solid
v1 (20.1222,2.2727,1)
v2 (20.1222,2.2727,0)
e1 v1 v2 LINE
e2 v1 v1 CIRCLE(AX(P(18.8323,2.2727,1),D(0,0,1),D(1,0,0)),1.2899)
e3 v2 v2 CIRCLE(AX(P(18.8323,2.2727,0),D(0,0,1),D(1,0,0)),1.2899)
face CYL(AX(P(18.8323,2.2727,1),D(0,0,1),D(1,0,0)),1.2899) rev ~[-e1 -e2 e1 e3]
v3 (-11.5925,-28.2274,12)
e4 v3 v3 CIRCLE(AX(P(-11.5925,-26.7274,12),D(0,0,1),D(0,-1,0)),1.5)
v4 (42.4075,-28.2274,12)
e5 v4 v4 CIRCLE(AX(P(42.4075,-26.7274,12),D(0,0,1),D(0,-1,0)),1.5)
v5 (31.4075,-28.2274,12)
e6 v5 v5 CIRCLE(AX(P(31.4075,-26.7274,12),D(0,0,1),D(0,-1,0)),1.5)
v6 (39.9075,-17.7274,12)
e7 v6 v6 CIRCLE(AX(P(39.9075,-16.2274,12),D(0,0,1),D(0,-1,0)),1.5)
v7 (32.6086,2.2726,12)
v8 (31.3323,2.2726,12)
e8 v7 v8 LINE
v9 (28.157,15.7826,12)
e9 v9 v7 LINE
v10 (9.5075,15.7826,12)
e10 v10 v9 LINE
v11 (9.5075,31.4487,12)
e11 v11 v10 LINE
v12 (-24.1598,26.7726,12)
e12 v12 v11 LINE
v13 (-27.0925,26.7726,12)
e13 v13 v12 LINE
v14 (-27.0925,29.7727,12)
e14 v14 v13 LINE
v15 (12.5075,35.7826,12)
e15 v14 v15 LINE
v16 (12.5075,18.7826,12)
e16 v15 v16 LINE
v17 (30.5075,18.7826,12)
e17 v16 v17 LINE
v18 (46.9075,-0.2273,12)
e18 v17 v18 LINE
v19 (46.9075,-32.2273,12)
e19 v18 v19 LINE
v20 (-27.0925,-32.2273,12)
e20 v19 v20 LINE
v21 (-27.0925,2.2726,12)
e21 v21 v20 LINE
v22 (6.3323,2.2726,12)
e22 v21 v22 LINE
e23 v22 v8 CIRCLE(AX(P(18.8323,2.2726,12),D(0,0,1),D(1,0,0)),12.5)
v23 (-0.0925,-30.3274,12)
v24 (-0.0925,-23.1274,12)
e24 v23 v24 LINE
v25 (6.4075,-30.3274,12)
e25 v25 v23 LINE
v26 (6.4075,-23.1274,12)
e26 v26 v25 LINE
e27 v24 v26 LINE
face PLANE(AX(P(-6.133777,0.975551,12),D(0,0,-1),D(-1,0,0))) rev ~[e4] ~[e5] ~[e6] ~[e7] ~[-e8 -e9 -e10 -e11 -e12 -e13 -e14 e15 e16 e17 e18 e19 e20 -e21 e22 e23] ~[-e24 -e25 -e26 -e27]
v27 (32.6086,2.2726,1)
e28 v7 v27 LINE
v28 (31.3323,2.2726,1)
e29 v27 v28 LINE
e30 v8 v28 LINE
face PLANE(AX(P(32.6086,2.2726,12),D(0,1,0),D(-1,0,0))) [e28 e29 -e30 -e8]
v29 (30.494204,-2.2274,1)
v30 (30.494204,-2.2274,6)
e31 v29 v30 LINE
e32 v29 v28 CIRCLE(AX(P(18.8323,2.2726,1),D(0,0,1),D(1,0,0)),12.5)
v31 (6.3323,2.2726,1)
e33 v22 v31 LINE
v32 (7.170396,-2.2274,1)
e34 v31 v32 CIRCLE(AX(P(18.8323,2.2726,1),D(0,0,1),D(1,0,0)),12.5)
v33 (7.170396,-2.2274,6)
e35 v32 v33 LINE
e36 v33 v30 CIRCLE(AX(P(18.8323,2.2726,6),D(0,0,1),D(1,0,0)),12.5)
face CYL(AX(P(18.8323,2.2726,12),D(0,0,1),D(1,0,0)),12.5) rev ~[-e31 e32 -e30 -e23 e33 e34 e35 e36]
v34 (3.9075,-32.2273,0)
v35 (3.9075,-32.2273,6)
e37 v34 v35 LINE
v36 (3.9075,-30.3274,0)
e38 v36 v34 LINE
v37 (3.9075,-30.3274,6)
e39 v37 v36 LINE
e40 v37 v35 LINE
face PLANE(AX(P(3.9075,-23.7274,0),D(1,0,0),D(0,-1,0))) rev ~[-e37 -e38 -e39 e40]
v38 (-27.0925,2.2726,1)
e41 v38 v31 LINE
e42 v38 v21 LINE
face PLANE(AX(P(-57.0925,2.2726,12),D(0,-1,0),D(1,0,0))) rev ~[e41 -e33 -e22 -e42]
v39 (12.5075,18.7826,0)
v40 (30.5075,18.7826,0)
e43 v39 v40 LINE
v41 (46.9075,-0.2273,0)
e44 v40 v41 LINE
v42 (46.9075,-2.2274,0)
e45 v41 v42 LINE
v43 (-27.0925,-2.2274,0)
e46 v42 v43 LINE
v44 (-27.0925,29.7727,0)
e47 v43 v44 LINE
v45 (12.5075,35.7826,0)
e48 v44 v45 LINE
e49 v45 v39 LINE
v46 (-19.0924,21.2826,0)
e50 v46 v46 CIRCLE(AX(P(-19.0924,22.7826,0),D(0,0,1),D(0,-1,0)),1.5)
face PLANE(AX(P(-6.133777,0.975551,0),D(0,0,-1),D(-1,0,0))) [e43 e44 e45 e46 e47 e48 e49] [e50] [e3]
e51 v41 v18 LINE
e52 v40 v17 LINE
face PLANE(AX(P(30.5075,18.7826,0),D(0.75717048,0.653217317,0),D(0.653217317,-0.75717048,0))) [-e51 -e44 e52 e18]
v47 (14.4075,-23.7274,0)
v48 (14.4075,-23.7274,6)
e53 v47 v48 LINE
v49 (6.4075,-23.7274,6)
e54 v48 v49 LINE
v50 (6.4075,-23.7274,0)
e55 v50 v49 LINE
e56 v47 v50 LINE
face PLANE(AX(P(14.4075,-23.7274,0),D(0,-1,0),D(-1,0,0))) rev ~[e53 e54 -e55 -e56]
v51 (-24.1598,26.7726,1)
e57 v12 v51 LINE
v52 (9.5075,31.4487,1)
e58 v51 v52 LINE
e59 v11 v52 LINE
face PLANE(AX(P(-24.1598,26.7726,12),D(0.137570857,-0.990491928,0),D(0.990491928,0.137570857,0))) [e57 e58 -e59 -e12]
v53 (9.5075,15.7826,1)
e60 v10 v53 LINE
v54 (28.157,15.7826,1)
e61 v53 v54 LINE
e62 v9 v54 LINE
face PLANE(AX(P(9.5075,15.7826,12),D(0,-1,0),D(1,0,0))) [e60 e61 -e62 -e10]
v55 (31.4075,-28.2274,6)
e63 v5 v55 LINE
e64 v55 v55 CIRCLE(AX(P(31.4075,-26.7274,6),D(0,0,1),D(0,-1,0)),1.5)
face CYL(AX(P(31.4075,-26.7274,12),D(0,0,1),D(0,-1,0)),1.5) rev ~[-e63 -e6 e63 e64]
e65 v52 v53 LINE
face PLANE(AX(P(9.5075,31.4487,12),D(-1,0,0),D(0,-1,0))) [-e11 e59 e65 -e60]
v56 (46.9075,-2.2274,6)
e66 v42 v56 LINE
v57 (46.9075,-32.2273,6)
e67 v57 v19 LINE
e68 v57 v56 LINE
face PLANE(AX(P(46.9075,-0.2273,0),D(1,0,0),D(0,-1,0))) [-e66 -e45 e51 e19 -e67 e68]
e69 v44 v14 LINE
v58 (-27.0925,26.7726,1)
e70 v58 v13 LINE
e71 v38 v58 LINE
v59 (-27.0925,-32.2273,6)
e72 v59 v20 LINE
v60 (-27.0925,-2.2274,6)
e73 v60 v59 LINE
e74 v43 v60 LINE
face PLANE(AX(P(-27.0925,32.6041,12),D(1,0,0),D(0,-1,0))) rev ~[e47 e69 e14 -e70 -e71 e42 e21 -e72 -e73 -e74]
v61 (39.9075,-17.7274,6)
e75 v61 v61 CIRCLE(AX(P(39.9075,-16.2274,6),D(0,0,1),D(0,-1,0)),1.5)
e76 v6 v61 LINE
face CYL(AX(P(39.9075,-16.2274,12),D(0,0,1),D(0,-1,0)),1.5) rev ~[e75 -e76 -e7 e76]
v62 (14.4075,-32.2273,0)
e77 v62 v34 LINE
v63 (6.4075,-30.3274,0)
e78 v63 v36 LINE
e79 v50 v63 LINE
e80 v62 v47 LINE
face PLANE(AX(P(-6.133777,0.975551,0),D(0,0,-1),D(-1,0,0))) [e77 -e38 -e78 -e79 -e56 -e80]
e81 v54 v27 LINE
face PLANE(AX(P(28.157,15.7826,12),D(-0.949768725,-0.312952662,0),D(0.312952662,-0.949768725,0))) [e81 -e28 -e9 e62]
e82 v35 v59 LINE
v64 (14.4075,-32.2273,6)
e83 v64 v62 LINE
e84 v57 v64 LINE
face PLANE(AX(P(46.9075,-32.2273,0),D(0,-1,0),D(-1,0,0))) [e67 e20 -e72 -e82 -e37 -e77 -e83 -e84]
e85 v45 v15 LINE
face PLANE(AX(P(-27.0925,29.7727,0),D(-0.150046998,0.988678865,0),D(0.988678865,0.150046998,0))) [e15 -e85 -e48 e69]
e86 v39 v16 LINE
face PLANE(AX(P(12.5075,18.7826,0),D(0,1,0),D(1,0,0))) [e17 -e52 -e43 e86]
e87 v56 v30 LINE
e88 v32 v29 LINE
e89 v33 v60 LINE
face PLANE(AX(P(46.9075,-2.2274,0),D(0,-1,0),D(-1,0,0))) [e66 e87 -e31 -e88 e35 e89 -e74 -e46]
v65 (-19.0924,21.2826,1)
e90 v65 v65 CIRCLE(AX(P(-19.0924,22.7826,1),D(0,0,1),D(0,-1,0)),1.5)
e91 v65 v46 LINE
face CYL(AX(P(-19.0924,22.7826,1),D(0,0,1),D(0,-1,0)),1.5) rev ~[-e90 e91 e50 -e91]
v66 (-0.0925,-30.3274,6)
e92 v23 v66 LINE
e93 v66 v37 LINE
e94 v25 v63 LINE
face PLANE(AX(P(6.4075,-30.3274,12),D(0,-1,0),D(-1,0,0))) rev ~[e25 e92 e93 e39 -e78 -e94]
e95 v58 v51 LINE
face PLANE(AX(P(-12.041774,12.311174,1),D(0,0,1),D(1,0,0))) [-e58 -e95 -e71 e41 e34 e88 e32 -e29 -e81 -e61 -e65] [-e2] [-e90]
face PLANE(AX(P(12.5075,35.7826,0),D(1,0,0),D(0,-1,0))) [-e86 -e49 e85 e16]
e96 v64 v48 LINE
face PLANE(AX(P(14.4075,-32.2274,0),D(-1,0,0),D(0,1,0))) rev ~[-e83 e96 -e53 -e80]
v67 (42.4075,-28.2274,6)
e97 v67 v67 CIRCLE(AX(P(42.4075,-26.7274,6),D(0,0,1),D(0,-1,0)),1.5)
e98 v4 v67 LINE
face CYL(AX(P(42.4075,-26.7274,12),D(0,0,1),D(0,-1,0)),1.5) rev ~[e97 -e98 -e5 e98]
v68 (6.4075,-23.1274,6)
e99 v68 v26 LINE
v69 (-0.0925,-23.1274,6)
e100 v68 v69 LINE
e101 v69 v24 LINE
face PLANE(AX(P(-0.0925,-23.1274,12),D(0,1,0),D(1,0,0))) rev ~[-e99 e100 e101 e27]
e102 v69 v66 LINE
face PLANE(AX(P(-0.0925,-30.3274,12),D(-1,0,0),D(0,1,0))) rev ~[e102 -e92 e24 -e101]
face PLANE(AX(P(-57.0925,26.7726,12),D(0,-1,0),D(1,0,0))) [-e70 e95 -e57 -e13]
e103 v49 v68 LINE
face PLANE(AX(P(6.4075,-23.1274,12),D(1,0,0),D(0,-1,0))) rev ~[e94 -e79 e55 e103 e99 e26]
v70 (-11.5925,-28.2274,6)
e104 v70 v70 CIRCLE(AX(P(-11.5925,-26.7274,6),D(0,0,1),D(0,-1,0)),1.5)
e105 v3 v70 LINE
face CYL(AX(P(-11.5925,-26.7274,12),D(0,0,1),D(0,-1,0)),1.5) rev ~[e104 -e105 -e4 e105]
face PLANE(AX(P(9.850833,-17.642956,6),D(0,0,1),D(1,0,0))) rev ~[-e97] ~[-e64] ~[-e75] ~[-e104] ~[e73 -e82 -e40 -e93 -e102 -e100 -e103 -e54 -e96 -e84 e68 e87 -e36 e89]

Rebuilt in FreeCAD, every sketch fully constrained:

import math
import FreeCAD as App
import Part
import Sketcher
from FreeCAD import Vector
Q = App.Units.Quantity


def add_polygon(sketch, points):
    """Adds a closed chain of lines whose ends are joined by coincident constraints."""
    first, n = sketch.GeometryCount, len(points)
    for a, b in zip(points, points[1:] + points[:1]):
        sketch.addGeometry(Part.LineSegment(App.Vector(*a, 0), App.Vector(*b, 0)), False)
    for i in range(n):
        sketch.addConstraint(Sketcher.Constraint("Coincident", first + i, 2, first + (i + 1) % n, 1))

doc = App.newDocument("Part")
body = doc.addObject("PartDesign::Body", "Body")

sketch1 = doc.addObject("Sketcher::SketchObject", "Sketch")
body.addObject(sketch1)
sketch1.AttachmentSupport = (doc.XY_Plane, [""])
sketch1.MapMode = "FlatFace"
add_polygon(sketch1, [(12.5075, 18.7826), (12.5075, 35.7826), (-27.0925, 29.7727), (-60.0925, 29.7727), (-60.0925, -0.7273), (-27.0925, -0.7273), (-27.0925, -32.2273), (46.9075, -32.2273), (46.9075, -0.2273), (30.5075, 18.7826)])
sketch1.addConstraint(Sketcher.Constraint("Vertical", 0))
sketch1.addConstraint(Sketcher.Constraint("Horizontal", 2))
sketch1.addConstraint(Sketcher.Constraint("Vertical", 3))
sketch1.addConstraint(Sketcher.Constraint("Horizontal", 4))
sketch1.addConstraint(Sketcher.Constraint("Vertical", 5))
sketch1.addConstraint(Sketcher.Constraint("Horizontal", 6))
sketch1.addConstraint(Sketcher.Constraint("Vertical", 7))
sketch1.addConstraint(Sketcher.Constraint("Horizontal", 9))
sketch1.addConstraint(Sketcher.Constraint("Vertical", 1, 2, 4, 2))
sketch1.addConstraint(Sketcher.Constraint("DistanceX", 2, 2, 2, 1, Q("33 mm")))
sketch1.addConstraint(Sketcher.Constraint("DistanceX", 6, 1, 6, 2, Q("74 mm")))
sketch1.addConstraint(Sketcher.Constraint("DistanceX", 9, 2, 9, 1, Q("18 mm")))
sketch1.addConstraint(Sketcher.Constraint("DistanceY", 0, 1, 0, 2, Q("17 mm")))
sketch1.addConstraint(Sketcher.Constraint("DistanceY", 7, 1, 7, 2, Q("32 mm")))
sketch1.addConstraint(Sketcher.Constraint("DistanceY", 3, 2, 3, 1, Q("30.5 mm")))
sketch1.addConstraint(Sketcher.Constraint("DistanceY", 5, 2, 5, 1, Q("31.5 mm")))
sketch1.addConstraint(Sketcher.Constraint("DistanceX", -1, 1, 0, 2, Q("12.5075 mm")))
sketch1.addConstraint(Sketcher.Constraint("DistanceX", 1, 2, -1, 1, Q("27.0925 mm")))
sketch1.addConstraint(Sketcher.Constraint("Angle", 1, Q("-171.3703 deg")))
sketch1.addConstraint(Sketcher.Constraint("DistanceY", -1, 1, 0, 2, Q("35.7826 mm")))
pad1 = doc.addObject("PartDesign::Pad", "Pad")
body.addObject(pad1)
pad1.Profile = sketch1
pad1.Length = 12

sketch2 = doc.addObject("Sketcher::SketchObject", "Sketch001")
body.addObject(sketch2)
sketch2.AttachmentSupport = (doc.XY_Plane, [""])
sketch2.MapMode = "FlatFace"
sketch2.AttachmentOffset = App.Placement(Vector(0, 0, 12), App.Rotation())
sketch2.addGeometry(Part.LineSegment(Vector(-24.1598, 26.7726, 0), Vector(-57.0925, 26.7726, 0)), False)
sketch2.addGeometry(Part.LineSegment(Vector(-57.0925, 26.7726, 0), Vector(-57.0925, 2.2726, 0)), False)
sketch2.addGeometry(Part.LineSegment(Vector(-57.0925, 2.2726, 0), Vector(6.3323, 2.2726, 0)), False)
sketch2.addGeometry(Part.ArcOfCircle(Part.Circle(Vector(18.8323, 2.2726, 0), Vector(0, 0, 1), 12.5), math.radians(180), math.radians(360)), False)
sketch2.addGeometry(Part.LineSegment(Vector(31.3323, 2.2726, 0), Vector(32.6086, 2.2726, 0)), False)
sketch2.addGeometry(Part.LineSegment(Vector(32.6086, 2.2726, 0), Vector(28.157, 15.7826, 0)), False)
sketch2.addGeometry(Part.LineSegment(Vector(28.157, 15.7826, 0), Vector(9.5075, 15.7826, 0)), False)
sketch2.addGeometry(Part.LineSegment(Vector(9.5075, 15.7826, 0), Vector(9.5075, 31.4487, 0)), False)
sketch2.addGeometry(Part.LineSegment(Vector(9.5075, 31.4487, 0), Vector(-24.1598, 26.7726, 0)), False)
sketch2.addConstraint(Sketcher.Constraint("Coincident", 0, 2, 1, 1))
sketch2.addConstraint(Sketcher.Constraint("Coincident", 1, 2, 2, 1))
sketch2.addConstraint(Sketcher.Constraint("Coincident", 2, 2, 3, 1))
sketch2.addConstraint(Sketcher.Constraint("Coincident", 3, 2, 4, 1))
sketch2.addConstraint(Sketcher.Constraint("Coincident", 4, 2, 5, 1))
sketch2.addConstraint(Sketcher.Constraint("Coincident", 5, 2, 6, 1))
sketch2.addConstraint(Sketcher.Constraint("Coincident", 6, 2, 7, 1))
sketch2.addConstraint(Sketcher.Constraint("Coincident", 7, 2, 8, 1))
sketch2.addConstraint(Sketcher.Constraint("Coincident", 8, 2, 0, 1))
sketch2.addConstraint(Sketcher.Constraint("Horizontal", 0))
sketch2.addConstraint(Sketcher.Constraint("Vertical", 1))
sketch2.addConstraint(Sketcher.Constraint("Horizontal", 2))
sketch2.addConstraint(Sketcher.Constraint("Horizontal", 4))
sketch2.addConstraint(Sketcher.Constraint("Horizontal", 6))
sketch2.addConstraint(Sketcher.Constraint("Vertical", 7))
sketch2.addConstraint(Sketcher.Constraint("Horizontal", 3, 3, 1, 2))
sketch2.addConstraint(Sketcher.Constraint("Horizontal", 2, 2, 3, 2))
sketch2.addConstraint(Sketcher.Constraint("Radius", 3, Q("12.5 mm")))
sketch2.addConstraint(Sketcher.Constraint("DistanceY", 1, 2, 1, 1, Q("24.5 mm")))
sketch2.addConstraint(Sketcher.Constraint("DistanceY", 7, 1, 7, 2, Q("15.666 mm")))
sketch2.addConstraint(Sketcher.Constraint("DistanceY", 3, 2, 5, 2, Q("13.51 mm")))
sketch2.addConstraint(Sketcher.Constraint("DistanceX", 0, 2, 0, 1, Q("32.9327 mm")))
sketch2.addConstraint(Sketcher.Constraint("DistanceX", 2, 1, 2, 2, Q("63.4248 mm")))
sketch2.addConstraint(Sketcher.Constraint("DistanceX", 4, 1, 4, 2, Q("1.2763 mm")))
sketch2.addConstraint(Sketcher.Constraint("DistanceX", 6, 2, 6, 1, Q("18.6495 mm")))
sketch2.addConstraint(Sketcher.Constraint("DistanceX", -1, 1, 5, 2, Q("28.157 mm")))
sketch2.addConstraint(Sketcher.Constraint("DistanceX", 6, 2, 4, 2, Q("23.101 mm")))
sketch2.addConstraint(Sketcher.Constraint("DistanceY", -1, 1, 3, 3, Q("2.2726 mm")))
pocket1 = doc.addObject("PartDesign::Pocket", "Pocket")
body.addObject(pocket1)
pocket1.Profile = sketch2
pocket1.Length = 11

sketch3 = doc.addObject("Sketcher::SketchObject", "Sketch002")
body.addObject(sketch3)
sketch3.AttachmentSupport = (doc.XY_Plane, [""])
sketch3.MapMode = "FlatFace"
sketch3.AttachmentOffset = App.Placement(Vector(0, 0, 1), App.Rotation())
sketch3.addGeometry(Part.Circle(Vector(18.8323, 2.2727, 0), Vector(0, 0, 1), 1.2899), False)
sketch3.addConstraint(Sketcher.Constraint("Diameter", 0, Q("2.5798 mm")))
sketch3.addConstraint(Sketcher.Constraint("DistanceX", -1, 1, 0, 3, Q("18.8323 mm")))
sketch3.addConstraint(Sketcher.Constraint("DistanceY", -1, 1, 0, 3, Q("2.2727 mm")))
pocket2 = doc.addObject("PartDesign::Pocket", "Pocket001")
body.addObject(pocket2)
pocket2.Profile = sketch3
pocket2.Type = "ThroughAll"
pocket2.Midplane = True

sketch4 = doc.addObject("Sketcher::SketchObject", "Sketch003")
body.addObject(sketch4)
sketch4.AttachmentSupport = (doc.XY_Plane, [""])
sketch4.MapMode = "FlatFace"
add_polygon(sketch4, [(46.9075, -2.2274), (46.9075, -32.2274), (14.4075, -32.2274), (14.4075, -23.7274), (3.9075, -23.7274), (3.9075, -32.2274), (-27.0925, -32.2274), (-27.0925, -2.2274)])
sketch4.addConstraint(Sketcher.Constraint("Vertical", 0))
sketch4.addConstraint(Sketcher.Constraint("Horizontal", 1))
sketch4.addConstraint(Sketcher.Constraint("Vertical", 2))
sketch4.addConstraint(Sketcher.Constraint("Horizontal", 3))
sketch4.addConstraint(Sketcher.Constraint("Vertical", 4))
sketch4.addConstraint(Sketcher.Constraint("Horizontal", 5))
sketch4.addConstraint(Sketcher.Constraint("Vertical", 6))
sketch4.addConstraint(Sketcher.Constraint("Horizontal", 7))
sketch4.addConstraint(Sketcher.Constraint("Horizontal", 1, 2, 4, 2))
sketch4.addConstraint(Sketcher.Constraint("DistanceX", 5, 2, 5, 1, Q("31 mm")))
sketch4.addConstraint(Sketcher.Constraint("DistanceX", 7, 1, 7, 2, Q("74 mm")))
sketch4.addConstraint(Sketcher.Constraint("DistanceY", 0, 2, 0, 1, Q("30 mm")))
sketch4.addConstraint(Sketcher.Constraint("DistanceX", 1, 2, 1, 1, Q("32.5 mm")))
sketch4.addConstraint(Sketcher.Constraint("DistanceY", 2, 1, 2, 2, Q("8.5 mm")))
sketch4.addConstraint(Sketcher.Constraint("DistanceX", -1, 1, 0, 2, Q("46.9075 mm")))
sketch4.addConstraint(Sketcher.Constraint("DistanceY", 0, 2, -1, 1, Q("32.2274 mm")))
pocket3 = doc.addObject("PartDesign::Pocket", "Pocket002")
body.addObject(pocket3)
pocket3.Profile = sketch4
pocket3.Length = 6
pocket3.Reversed = True

sketch5 = doc.addObject("Sketcher::SketchObject", "Sketch004")
body.addObject(sketch5)
sketch5.AttachmentSupport = (doc.XY_Plane, [""])
sketch5.MapMode = "FlatFace"
sketch5.AttachmentOffset = App.Placement(Vector(0, 0, 12), App.Rotation())
sketch5.addGeometry(Part.Circle(Vector(42.4075, -26.7274, 0), Vector(0, 0, 1), 1.5), False)
sketch5.addGeometry(Part.Circle(Vector(31.4075, -26.7274, 0), Vector(0, 0, 1), 1.5), False)
sketch5.addGeometry(Part.Circle(Vector(-11.5925, -26.7274, 0), Vector(0, 0, 1), 1.5), False)
add_polygon(sketch5, [(6.4075, -30.3274), (6.4075, -23.1274), (-0.0925, -23.1274), (-0.0925, -30.3274)])
sketch5.addConstraint(Sketcher.Constraint("Vertical", 3))
sketch5.addConstraint(Sketcher.Constraint("Horizontal", 4))
sketch5.addConstraint(Sketcher.Constraint("Vertical", 5))
sketch5.addConstraint(Sketcher.Constraint("Horizontal", 6))
sketch5.addConstraint(Sketcher.Constraint("Equal", 0, 1))
sketch5.addConstraint(Sketcher.Constraint("Equal", 1, 2))
sketch5.addConstraint(Sketcher.Constraint("Horizontal", 0, 3, 1, 3))
sketch5.addConstraint(Sketcher.Constraint("Horizontal", 1, 3, 2, 3))
sketch5.addConstraint(Sketcher.Constraint("Diameter", 0, Q("3 mm")))
sketch5.addConstraint(Sketcher.Constraint("DistanceX", 4, 2, 4, 1, Q("6.5 mm")))
sketch5.addConstraint(Sketcher.Constraint("DistanceY", 3, 1, 3, 2, Q("7.2 mm")))
sketch5.addConstraint(Sketcher.Constraint("DistanceX", 1, 3, 0, 3, Q("11 mm")))
sketch5.addConstraint(Sketcher.Constraint("DistanceX", 2, 3, 1, 3, Q("43 mm")))
sketch5.addConstraint(Sketcher.Constraint("DistanceX", 2, 3, 3, 2, Q("18 mm")))
sketch5.addConstraint(Sketcher.Constraint("DistanceY", 2, 3, 3, 2, Q("3.6 mm")))
sketch5.addConstraint(Sketcher.Constraint("DistanceX", -1, 1, 0, 3, Q("42.4075 mm")))
sketch5.addConstraint(Sketcher.Constraint("DistanceY", 0, 3, -1, 1, Q("26.7274 mm")))
pocket4 = doc.addObject("PartDesign::Pocket", "Pocket003")
body.addObject(pocket4)
pocket4.Profile = sketch5
pocket4.Type = "ThroughAll"
pocket4.Midplane = True

sketch6 = doc.addObject("Sketcher::SketchObject", "Sketch005")
body.addObject(sketch6)
sketch6.AttachmentSupport = (doc.XY_Plane, [""])
sketch6.MapMode = "FlatFace"
sketch6.AttachmentOffset = App.Placement(Vector(0, 0, 1), App.Rotation())
sketch6.addGeometry(Part.Circle(Vector(-19.0924, 22.7826, 0), Vector(0, 0, 1), 1.5), False)
sketch6.addConstraint(Sketcher.Constraint("Diameter", 0, Q("3 mm")))
sketch6.addConstraint(Sketcher.Constraint("DistanceX", 0, 3, -1, 1, Q("19.0924 mm")))
sketch6.addConstraint(Sketcher.Constraint("DistanceY", -1, 1, 0, 3, Q("22.7826 mm")))
pocket5 = doc.addObject("PartDesign::Pocket", "Pocket004")
body.addObject(pocket5)
pocket5.Profile = sketch6
pocket5.Type = "ThroughAll"
pocket5.Midplane = True

sketch7 = doc.addObject("Sketcher::SketchObject", "Sketch006")
body.addObject(sketch7)
sketch7.AttachmentSupport = (doc.XY_Plane, [""])
sketch7.MapMode = "FlatFace"
sketch7.AttachmentOffset = App.Placement(Vector(0, 0, 12), App.Rotation())
sketch7.addGeometry(Part.Circle(Vector(39.9075, -16.2274, 0), Vector(0, 0, 1), 1.5), False)
sketch7.addConstraint(Sketcher.Constraint("Diameter", 0, Q("3 mm")))
sketch7.addConstraint(Sketcher.Constraint("DistanceX", -1, 1, 0, 3, Q("39.9075 mm")))
sketch7.addConstraint(Sketcher.Constraint("DistanceY", 0, 3, -1, 1, Q("16.2274 mm")))
pocket6 = doc.addObject("PartDesign::Pocket", "Pocket005")
body.addObject(pocket6)
pocket6.Profile = sketch7
pocket6.Type = "ThroughAll"
pocket6.Midplane = True

sketch8 = doc.addObject("Sketcher::SketchObject", "Sketch007")
body.addObject(sketch8)
sketch8.AttachmentSupport = (doc.XY_Plane, [""])
sketch8.MapMode = "FlatFace"
sketch8.AttachmentOffset = App.Placement(Vector(0, 0, 12), App.Rotation())
add_polygon(sketch8, [(-64.8203, -0.7274), (-27.0925, -0.7274), (-27.0925, 32.6041), (-64.8203, 32.6041)])
sketch8.addConstraint(Sketcher.Constraint("Horizontal", 0))
sketch8.addConstraint(Sketcher.Constraint("Vertical", 1))
sketch8.addConstraint(Sketcher.Constraint("Horizontal", 2))
sketch8.addConstraint(Sketcher.Constraint("Vertical", 3))
sketch8.addConstraint(Sketcher.Constraint("DistanceX", 0, 1, 0, 2, Q("37.7278 mm")))
sketch8.addConstraint(Sketcher.Constraint("DistanceY", 1, 1, 1, 2, Q("33.3315 mm")))
sketch8.addConstraint(Sketcher.Constraint("DistanceY", -1, 1, 1, 2, Q("32.604 mm")))
sketch8.addConstraint(Sketcher.Constraint("DistanceX", 0, 2, -1, 1, Q("27.0925 mm")))
pocket7 = doc.addObject("PartDesign::Pocket", "Pocket006")
body.addObject(pocket7)
pocket7.Profile = sketch8
pocket7.Length = 65.5466
pocket7.Midplane = True

doc.recompute()
